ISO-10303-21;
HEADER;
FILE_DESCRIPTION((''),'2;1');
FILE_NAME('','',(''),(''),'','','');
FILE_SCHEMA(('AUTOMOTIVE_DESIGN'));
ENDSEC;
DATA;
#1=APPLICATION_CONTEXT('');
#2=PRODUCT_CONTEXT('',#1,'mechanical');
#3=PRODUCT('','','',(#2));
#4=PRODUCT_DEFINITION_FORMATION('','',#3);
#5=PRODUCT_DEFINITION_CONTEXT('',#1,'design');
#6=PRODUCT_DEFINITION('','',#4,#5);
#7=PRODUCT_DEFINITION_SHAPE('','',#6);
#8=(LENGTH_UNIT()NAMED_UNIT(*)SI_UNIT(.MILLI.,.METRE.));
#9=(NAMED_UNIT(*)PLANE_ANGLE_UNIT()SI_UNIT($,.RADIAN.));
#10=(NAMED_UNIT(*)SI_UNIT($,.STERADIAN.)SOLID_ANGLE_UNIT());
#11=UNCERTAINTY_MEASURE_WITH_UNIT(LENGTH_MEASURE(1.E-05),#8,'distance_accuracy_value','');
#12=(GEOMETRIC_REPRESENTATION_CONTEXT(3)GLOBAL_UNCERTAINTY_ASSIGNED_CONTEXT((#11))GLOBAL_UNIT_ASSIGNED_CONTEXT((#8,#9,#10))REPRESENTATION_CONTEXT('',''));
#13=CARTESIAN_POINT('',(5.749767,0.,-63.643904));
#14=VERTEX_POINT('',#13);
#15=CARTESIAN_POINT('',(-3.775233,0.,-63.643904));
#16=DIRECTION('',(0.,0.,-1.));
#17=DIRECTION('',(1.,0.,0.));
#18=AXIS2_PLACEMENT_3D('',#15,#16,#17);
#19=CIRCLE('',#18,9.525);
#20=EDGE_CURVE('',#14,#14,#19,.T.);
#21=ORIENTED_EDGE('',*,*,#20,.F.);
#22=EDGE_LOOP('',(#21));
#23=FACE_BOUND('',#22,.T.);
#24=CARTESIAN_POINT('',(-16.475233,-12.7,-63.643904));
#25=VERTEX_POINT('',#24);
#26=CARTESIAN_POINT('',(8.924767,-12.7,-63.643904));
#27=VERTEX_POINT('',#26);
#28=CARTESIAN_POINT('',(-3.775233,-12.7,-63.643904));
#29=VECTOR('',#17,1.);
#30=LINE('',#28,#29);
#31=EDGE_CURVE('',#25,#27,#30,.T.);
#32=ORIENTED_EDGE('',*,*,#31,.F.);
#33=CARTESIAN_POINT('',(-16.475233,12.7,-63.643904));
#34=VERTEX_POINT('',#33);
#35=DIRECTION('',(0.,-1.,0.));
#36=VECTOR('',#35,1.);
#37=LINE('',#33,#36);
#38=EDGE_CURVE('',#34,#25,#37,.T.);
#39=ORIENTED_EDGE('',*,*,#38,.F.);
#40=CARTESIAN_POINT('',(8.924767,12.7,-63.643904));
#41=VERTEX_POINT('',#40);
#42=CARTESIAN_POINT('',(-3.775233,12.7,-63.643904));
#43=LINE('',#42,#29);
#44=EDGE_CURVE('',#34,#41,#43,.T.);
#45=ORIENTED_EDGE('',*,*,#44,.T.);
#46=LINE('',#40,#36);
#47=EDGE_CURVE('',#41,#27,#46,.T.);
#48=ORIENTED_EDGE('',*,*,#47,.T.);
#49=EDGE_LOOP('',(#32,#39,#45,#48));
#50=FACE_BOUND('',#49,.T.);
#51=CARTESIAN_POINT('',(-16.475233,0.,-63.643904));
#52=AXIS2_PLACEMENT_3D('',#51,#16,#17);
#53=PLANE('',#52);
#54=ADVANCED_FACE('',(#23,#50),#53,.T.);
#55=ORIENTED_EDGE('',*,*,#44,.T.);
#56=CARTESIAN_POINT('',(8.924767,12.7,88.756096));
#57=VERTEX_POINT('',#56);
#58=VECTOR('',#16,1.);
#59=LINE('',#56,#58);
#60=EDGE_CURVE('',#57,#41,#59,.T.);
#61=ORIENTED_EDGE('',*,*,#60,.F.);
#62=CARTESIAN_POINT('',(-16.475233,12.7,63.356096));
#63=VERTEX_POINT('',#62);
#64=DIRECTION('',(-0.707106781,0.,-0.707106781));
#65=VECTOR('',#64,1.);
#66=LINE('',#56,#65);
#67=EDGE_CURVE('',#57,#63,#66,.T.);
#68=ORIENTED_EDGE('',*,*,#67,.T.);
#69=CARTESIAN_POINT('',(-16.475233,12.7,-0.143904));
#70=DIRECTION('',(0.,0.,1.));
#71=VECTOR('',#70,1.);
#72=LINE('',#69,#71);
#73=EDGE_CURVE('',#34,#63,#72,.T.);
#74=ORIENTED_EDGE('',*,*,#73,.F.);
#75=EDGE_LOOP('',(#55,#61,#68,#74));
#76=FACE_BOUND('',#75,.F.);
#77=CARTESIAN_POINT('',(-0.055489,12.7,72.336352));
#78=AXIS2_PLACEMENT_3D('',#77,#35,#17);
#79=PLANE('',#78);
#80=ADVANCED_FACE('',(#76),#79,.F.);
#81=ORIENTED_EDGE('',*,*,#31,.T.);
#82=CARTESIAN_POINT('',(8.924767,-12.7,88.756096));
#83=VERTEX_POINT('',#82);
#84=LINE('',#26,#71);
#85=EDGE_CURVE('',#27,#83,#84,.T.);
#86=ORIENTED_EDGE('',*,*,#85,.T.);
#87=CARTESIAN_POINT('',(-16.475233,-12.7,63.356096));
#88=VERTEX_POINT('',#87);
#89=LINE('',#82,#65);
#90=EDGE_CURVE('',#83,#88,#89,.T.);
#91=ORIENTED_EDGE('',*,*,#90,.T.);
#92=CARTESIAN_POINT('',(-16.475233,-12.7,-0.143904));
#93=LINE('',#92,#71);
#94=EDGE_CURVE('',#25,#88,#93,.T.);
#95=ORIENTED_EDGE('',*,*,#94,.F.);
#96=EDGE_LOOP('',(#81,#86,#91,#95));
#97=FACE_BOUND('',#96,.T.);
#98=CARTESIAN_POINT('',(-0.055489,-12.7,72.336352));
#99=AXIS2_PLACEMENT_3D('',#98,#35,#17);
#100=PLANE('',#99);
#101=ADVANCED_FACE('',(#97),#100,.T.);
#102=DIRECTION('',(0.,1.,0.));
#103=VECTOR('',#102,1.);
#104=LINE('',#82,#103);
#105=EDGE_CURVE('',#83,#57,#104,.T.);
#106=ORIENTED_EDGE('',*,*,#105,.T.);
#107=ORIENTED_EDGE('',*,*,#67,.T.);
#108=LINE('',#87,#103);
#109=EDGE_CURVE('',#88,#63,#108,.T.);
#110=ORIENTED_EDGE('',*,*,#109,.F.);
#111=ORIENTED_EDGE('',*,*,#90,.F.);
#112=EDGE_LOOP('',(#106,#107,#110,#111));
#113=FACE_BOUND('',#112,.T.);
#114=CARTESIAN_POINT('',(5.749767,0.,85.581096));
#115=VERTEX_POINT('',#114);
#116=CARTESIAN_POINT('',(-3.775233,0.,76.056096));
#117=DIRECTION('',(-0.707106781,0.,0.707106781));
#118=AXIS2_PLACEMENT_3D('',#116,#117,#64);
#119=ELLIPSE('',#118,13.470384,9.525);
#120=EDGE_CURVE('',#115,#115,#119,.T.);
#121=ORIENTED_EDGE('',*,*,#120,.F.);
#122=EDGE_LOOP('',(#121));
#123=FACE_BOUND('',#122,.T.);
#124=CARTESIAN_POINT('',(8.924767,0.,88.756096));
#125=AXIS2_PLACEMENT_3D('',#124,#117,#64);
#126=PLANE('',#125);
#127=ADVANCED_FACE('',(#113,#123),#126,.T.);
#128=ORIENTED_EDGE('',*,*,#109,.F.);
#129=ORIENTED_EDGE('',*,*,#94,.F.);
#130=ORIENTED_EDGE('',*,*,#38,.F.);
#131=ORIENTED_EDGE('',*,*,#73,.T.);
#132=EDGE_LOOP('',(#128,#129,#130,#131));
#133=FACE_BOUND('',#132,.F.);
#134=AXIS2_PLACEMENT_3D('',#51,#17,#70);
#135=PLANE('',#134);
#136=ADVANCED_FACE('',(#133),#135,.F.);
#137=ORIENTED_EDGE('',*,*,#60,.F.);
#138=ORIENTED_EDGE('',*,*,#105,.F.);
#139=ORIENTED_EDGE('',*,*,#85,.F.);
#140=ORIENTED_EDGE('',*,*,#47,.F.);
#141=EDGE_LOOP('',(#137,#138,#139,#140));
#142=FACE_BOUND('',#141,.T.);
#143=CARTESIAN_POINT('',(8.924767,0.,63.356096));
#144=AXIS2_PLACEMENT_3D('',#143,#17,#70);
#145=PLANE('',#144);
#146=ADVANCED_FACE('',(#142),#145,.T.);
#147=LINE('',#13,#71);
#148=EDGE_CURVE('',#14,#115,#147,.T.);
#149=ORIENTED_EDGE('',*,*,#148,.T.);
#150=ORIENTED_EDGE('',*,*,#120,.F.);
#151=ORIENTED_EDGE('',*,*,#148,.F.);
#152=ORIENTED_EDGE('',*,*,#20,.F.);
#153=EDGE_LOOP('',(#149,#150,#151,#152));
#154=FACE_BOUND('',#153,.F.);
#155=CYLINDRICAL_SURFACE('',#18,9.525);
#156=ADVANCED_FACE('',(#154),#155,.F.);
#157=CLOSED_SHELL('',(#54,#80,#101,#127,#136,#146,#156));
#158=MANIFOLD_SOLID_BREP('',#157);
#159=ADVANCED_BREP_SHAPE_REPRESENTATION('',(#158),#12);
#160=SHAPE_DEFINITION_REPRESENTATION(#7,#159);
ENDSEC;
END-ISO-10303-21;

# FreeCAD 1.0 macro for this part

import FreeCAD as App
import Part
import Sketcher
Q = App.Units.Quantity

doc = App.newDocument("Part")
body = doc.addObject("PartDesign::Body", "Body")

sketch1 = doc.addObject("Sketcher::SketchObject", "Sketch")
body.addObject(sketch1)
sketch1.AttachmentSupport = (doc.XZ_Plane, [""])
sketch1.MapMode = "FlatFace"
sketch1.addGeometry([
    Part.LineSegment(App.Vector(-16.475233, 63.356096, 0), App.Vector(-16.475233, -63.643904, 0)),
    Part.LineSegment(App.Vector(-16.475233, -63.643904, 0), App.Vector(8.924767, -63.643904, 0)),
    Part.LineSegment(App.Vector(8.924767, -63.643904, 0), App.Vector(8.924767, 63.356096, 0)),
    Part.LineSegment(App.Vector(8.924767, 63.356096, 0), App.Vector(-16.475233, 63.356096, 0)),
], False)
sketch1.addConstraint([
    Sketcher.Constraint("Coincident", 0, 2, 1, 1),
    Sketcher.Constraint("Coincident", 1, 2, 2, 1),
    Sketcher.Constraint("Coincident", 2, 2, 3, 1),
    Sketcher.Constraint("Coincident", 3, 2, 0, 1),
    Sketcher.Constraint("Vertical", 0),
    Sketcher.Constraint("Horizontal", 1),
    Sketcher.Constraint("Vertical", 2),
    Sketcher.Constraint("Horizontal", 3),
    Sketcher.Constraint("DistanceX", 1, 1, 1, 2, Q("1 in")),
    Sketcher.Constraint("DistanceY", 0, 2, 0, 1, Q("5 in")),
    Sketcher.Constraint("DistanceX", 0, 2, -1, 1, 16.475233),
    Sketcher.Constraint("DistanceY", 0, 2, -1, 1, 63.643904),
])
pad1 = doc.addObject("PartDesign::Pad", "Pad")
body.addObject(pad1)
pad1.Profile = sketch1
pad1.Length = Q("1 in")
pad1.Midplane = True

sketch2 = doc.addObject("Sketcher::SketchObject", "Sketch001")
body.addObject(sketch2)
sketch2.AttachmentSupport = (doc.XZ_Plane, [""])
sketch2.MapMode = "FlatFace"
sketch2.addGeometry([
    Part.LineSegment(App.Vector(-16.475233, 63.356096, 0), App.Vector(8.924767, 63.356096, 0)),
    Part.LineSegment(App.Vector(8.924767, 63.356096, 0), App.Vector(8.924767, 88.756096, 0)),
    Part.LineSegment(App.Vector(8.924767, 88.756096, 0), App.Vector(-16.475233, 63.356096, 0)),
], False)
sketch2.addConstraint([
    Sketcher.Constraint("Coincident", 0, 2, 1, 1),
    Sketcher.Constraint("Coincident", 1, 2, 2, 1),
    Sketcher.Constraint("Coincident", 2, 2, 0, 1),
    Sketcher.Constraint("Horizontal", 0),
    Sketcher.Constraint("Vertical", 1),
    Sketcher.Constraint("Equal", 0, 1),
    Sketcher.Constraint("DistanceX", 0, 1, 0, 2, Q("1 in")),
    Sketcher.Constraint("DistanceX", -1, 1, 0, 2, 8.924767),
    Sketcher.Constraint("DistanceY", -1, 1, 0, 2, 63.356096),
])
pad2 = doc.addObject("PartDesign::Pad", "Pad001")
body.addObject(pad2)
pad2.Profile = sketch2
pad2.Length = Q("1 in")
pad2.Midplane = True

sketch3 = doc.addObject("Sketcher::SketchObject", "Sketch002")
body.addObject(sketch3)
sketch3.AttachmentSupport = (doc.XY_Plane, [""])
sketch3.MapMode = "FlatFace"
sketch3.AttachmentOffset = App.Placement(App.Vector(0, 0, -63.643904), App.Rotation())
sketch3.addGeometry(Part.Circle(App.Vector(-3.775233, 0, 0), App.Vector(0, 0, 1), 9.525), False)
sketch3.addConstraint([
    Sketcher.Constraint("PointOnObject", 0, 3, -1),
    Sketcher.Constraint("Diameter", 0, Q("0.75 in")),
    Sketcher.Constraint("DistanceX", 0, 3, -1, 1, 3.775233),
])
pocket1 = doc.addObject("PartDesign::Pocket", "Pocket")
body.addObject(pocket1)
pocket1.Profile = sketch3
pocket1.Type = "ThroughAll"
pocket1.Reversed = True

doc.recompute()
